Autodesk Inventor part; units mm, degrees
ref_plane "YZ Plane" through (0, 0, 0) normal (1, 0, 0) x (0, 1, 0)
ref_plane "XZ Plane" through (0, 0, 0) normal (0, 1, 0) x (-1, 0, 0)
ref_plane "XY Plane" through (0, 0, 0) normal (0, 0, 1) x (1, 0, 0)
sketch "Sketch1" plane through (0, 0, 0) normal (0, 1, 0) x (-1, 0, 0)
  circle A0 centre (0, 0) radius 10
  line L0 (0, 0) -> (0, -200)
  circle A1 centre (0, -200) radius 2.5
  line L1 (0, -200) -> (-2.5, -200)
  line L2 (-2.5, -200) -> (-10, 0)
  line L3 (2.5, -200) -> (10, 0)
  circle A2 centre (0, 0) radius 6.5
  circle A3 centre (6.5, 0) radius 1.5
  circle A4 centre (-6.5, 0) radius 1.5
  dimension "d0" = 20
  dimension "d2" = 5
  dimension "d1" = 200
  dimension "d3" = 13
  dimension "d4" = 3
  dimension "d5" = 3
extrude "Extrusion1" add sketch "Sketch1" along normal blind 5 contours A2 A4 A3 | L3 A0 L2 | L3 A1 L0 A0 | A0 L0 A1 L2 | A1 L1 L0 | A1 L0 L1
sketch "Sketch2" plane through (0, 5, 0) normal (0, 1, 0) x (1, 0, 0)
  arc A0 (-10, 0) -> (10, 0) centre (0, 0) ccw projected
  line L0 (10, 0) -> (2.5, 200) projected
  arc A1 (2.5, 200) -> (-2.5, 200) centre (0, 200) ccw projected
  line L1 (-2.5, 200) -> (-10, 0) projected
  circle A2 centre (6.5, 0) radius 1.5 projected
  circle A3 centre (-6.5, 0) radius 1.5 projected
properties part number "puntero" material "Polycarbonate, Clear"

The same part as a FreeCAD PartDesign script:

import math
import FreeCAD as App
import Part
import Sketcher

doc = App.newDocument("Part")
body = doc.addObject("PartDesign::Body", "Body")

# Sketch on XZ plane
sketch1 = body.newObject("Sketcher::SketchObject", "Sketch")
sketch1.AttachmentSupport = (doc.getObject("XZ_Plane"), [""])
sketch1.MapMode = "FlatFace"
sketch1.addGeometry([
    Part.ArcOfCircle(Part.Circle(App.Vector(0, 0, 0), App.Vector(0, 0, 1), 10), math.radians(0), math.radians(180)),  # 0
    Part.LineSegment(App.Vector(10, 0, 0), App.Vector(2.5, -200, 0)),  # 1
    Part.ArcOfCircle(Part.Circle(App.Vector(0, -200, 0), App.Vector(0, 0, 1), 2.5), math.radians(180), math.radians(360)),  # 2
    Part.LineSegment(App.Vector(-2.5, -200, 0), App.Vector(-10, 0, 0)),  # 3
    Part.Circle(App.Vector(6.5, 0, 0), App.Vector(0, 0, 1), 1.5),  # 4
    Part.Circle(App.Vector(-6.5, 0, 0), App.Vector(0, 0, 1), 1.5),  # 5
], False)
sketch1.addConstraint([
    Sketcher.Constraint("Coincident", 0, 1, 1, 1),
    Sketcher.Constraint("Coincident", 1, 2, 2, 2),
    Sketcher.Constraint("Coincident", 2, 1, 3, 1),
    Sketcher.Constraint("Coincident", 3, 2, 0, 2),
    Sketcher.Constraint("Coincident", 0, 3, -1, 1),
    Sketcher.Constraint("Equal", 4, 5),
    Sketcher.Constraint("Symmetric", 4, 3, 5, 3, -1, 1),
    Sketcher.Constraint("Symmetric", 1, 2, 2, 1, -2),
    Sketcher.Constraint("PointOnObject", 4, 3, -1),
    Sketcher.Constraint("PointOnObject", 0, 1, -1),
    Sketcher.Constraint("PointOnObject", 3, 2, -1),
    Sketcher.Constraint("Horizontal", 2, 3, 1, 2),
    Sketcher.Constraint("Diameter", 4, 3.0),
    Sketcher.Constraint("Radius", 0, 10.0),
    Sketcher.Constraint("Radius", 2, 2.5),
    Sketcher.Constraint("DistanceY", 2, 3, -1, 1, 200.0),
    Sketcher.Constraint("DistanceX", 5, 3, 4, 3, 13.0),
])
pad1 = body.newObject("PartDesign::Pad", "Pad")
pad1.Profile = sketch1
pad1.Length = 5
pad1.Reversed = True

doc.recompute()
